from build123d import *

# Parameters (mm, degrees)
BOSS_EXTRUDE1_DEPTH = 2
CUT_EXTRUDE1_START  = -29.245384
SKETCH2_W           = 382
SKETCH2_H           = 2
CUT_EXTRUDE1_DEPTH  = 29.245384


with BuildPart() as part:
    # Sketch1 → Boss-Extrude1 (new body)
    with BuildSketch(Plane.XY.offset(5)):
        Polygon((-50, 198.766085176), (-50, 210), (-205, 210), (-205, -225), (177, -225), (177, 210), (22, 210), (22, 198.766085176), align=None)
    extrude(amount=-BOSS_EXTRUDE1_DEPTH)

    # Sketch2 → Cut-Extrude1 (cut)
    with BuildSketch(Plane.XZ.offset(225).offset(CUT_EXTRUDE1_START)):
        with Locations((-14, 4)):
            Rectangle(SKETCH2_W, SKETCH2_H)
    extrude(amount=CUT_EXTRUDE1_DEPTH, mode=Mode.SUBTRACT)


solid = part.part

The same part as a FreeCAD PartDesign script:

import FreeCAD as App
import Part
import Sketcher

V = App.Vector

doc = App.newDocument("Part")
body = doc.addObject("PartDesign::Body", "Body")

# Sketch on XY plane
sketch1 = doc.addObject("Sketcher::SketchObject", "Sketch")
body.addObject(sketch1)
sketch1.AttachmentSupport = (doc.XY_Plane, [""])
sketch1.MapMode = "FlatFace"
sketch1.AttachmentOffset = App.Placement(V(0, 0, 5), App.Rotation())
sketch1.addGeometry([
    Part.LineSegment(V(-50, 199, 0), V(-50, 210, 0)),  # 0
    Part.LineSegment(V(-50, 210, 0), V(-205, 210, 0)),  # 1
    Part.LineSegment(V(-205, 210, 0), V(-205, -225, 0)),  # 2
    Part.LineSegment(V(-205, -225, 0), V(177, -225, 0)),  # 3
    Part.LineSegment(V(177, -225, 0), V(177, 210, 0)),  # 4
    Part.LineSegment(V(177, 210, 0), V(22, 210, 0)),  # 5
    Part.LineSegment(V(22, 210, 0), V(22, 199, 0)),  # 6
    Part.LineSegment(V(22, 199, 0), V(-50, 199, 0)),  # 7
], False)
sketch1.addConstraint([
    Sketcher.Constraint("Coincident", 0, 2, 1, 1),
    Sketcher.Constraint("Coincident", 1, 2, 2, 1),
    Sketcher.Constraint("Coincident", 2, 2, 3, 1),
    Sketcher.Constraint("Coincident", 3, 2, 4, 1),
    Sketcher.Constraint("Coincident", 4, 2, 5, 1),
    Sketcher.Constraint("Coincident", 5, 2, 6, 1),
    Sketcher.Constraint("Coincident", 6, 2, 7, 1),
    Sketcher.Constraint("Coincident", 7, 2, 0, 1),
    Sketcher.Constraint("Vertical", 0),
    Sketcher.Constraint("Horizontal", 1),
    Sketcher.Constraint("Vertical", 2),
    Sketcher.Constraint("Horizontal", 3),
    Sketcher.Constraint("Vertical", 4),
    Sketcher.Constraint("Horizontal", 5),
    Sketcher.Constraint("Vertical", 6),
    Sketcher.Constraint("Horizontal", 7),
    Sketcher.Constraint("Horizontal", 1, 2, 4, 2),
    Sketcher.Constraint("Equal", 1, 5),
    Sketcher.Constraint("DistanceX", 1, 2, 1, 1, 155.0),
    Sketcher.Constraint("DistanceX", 3, 1, 3, 2, 382.0),
    Sketcher.Constraint("DistanceY", 2, 2, 2, 1, 435.0),
    Sketcher.Constraint("DistanceX", 0, 2, -1, 1, 50.0),
    Sketcher.Constraint("DistanceY", -1, 1, 0, 2, 210.0),
    Sketcher.Constraint("DistanceY", 0, 1, 0, 2, 11.233915),
])
pad1 = doc.addObject("PartDesign::Pad", "Pad")
body.addObject(pad1)
pad1.Profile = sketch1
pad1.Length = 2
pad1.Reversed = True

# Sketch on XZ plane
sketch2 = doc.addObject("Sketcher::SketchObject", "Sketch001")
body.addObject(sketch2)
sketch2.AttachmentSupport = (doc.XZ_Plane, [""])
sketch2.MapMode = "FlatFace"
sketch2.AttachmentOffset = App.Placement(V(0, 0, 195.754616), App.Rotation())
sketch2.addGeometry([
    Part.LineSegment(V(-205, 5, 0), V(-205, 3, 0)),
    Part.LineSegment(V(-205, 3, 0), V(177, 3, 0)),
    Part.LineSegment(V(177, 3, 0), V(177, 5, 0)),
    Part.LineSegment(V(177, 5, 0), V(-205, 5, 0)),
], False)
sketch2.addConstraint([
    Sketcher.Constraint("Coincident", 0, 2, 1, 1),
    Sketcher.Constraint("Coincident", 1, 2, 2, 1),
    Sketcher.Constraint("Coincident", 2, 2, 3, 1),
    Sketcher.Constraint("Coincident", 3, 2, 0, 1),
    Sketcher.Constraint("Vertical", 0),
    Sketcher.Constraint("Horizontal", 1),
    Sketcher.Constraint("Vertical", 2),
    Sketcher.Constraint("Horizontal", 3),
    Sketcher.Constraint("DistanceX", 1, 1, 1, 2, 382.0),
    Sketcher.Constraint("DistanceY", 0, 2, 0, 1, 2.0),
    Sketcher.Constraint("DistanceX", 0, 2, -1, 1, 205.0),
    Sketcher.Constraint("DistanceY", -1, 1, 0, 2, 3.0),
])
pocket1 = doc.addObject("PartDesign::Pocket", "Pocket")
body.addObject(pocket1)
pocket1.Profile = sketch2
pocket1.Length = 29.245384
pocket1.Reversed = True

doc.recompute()
